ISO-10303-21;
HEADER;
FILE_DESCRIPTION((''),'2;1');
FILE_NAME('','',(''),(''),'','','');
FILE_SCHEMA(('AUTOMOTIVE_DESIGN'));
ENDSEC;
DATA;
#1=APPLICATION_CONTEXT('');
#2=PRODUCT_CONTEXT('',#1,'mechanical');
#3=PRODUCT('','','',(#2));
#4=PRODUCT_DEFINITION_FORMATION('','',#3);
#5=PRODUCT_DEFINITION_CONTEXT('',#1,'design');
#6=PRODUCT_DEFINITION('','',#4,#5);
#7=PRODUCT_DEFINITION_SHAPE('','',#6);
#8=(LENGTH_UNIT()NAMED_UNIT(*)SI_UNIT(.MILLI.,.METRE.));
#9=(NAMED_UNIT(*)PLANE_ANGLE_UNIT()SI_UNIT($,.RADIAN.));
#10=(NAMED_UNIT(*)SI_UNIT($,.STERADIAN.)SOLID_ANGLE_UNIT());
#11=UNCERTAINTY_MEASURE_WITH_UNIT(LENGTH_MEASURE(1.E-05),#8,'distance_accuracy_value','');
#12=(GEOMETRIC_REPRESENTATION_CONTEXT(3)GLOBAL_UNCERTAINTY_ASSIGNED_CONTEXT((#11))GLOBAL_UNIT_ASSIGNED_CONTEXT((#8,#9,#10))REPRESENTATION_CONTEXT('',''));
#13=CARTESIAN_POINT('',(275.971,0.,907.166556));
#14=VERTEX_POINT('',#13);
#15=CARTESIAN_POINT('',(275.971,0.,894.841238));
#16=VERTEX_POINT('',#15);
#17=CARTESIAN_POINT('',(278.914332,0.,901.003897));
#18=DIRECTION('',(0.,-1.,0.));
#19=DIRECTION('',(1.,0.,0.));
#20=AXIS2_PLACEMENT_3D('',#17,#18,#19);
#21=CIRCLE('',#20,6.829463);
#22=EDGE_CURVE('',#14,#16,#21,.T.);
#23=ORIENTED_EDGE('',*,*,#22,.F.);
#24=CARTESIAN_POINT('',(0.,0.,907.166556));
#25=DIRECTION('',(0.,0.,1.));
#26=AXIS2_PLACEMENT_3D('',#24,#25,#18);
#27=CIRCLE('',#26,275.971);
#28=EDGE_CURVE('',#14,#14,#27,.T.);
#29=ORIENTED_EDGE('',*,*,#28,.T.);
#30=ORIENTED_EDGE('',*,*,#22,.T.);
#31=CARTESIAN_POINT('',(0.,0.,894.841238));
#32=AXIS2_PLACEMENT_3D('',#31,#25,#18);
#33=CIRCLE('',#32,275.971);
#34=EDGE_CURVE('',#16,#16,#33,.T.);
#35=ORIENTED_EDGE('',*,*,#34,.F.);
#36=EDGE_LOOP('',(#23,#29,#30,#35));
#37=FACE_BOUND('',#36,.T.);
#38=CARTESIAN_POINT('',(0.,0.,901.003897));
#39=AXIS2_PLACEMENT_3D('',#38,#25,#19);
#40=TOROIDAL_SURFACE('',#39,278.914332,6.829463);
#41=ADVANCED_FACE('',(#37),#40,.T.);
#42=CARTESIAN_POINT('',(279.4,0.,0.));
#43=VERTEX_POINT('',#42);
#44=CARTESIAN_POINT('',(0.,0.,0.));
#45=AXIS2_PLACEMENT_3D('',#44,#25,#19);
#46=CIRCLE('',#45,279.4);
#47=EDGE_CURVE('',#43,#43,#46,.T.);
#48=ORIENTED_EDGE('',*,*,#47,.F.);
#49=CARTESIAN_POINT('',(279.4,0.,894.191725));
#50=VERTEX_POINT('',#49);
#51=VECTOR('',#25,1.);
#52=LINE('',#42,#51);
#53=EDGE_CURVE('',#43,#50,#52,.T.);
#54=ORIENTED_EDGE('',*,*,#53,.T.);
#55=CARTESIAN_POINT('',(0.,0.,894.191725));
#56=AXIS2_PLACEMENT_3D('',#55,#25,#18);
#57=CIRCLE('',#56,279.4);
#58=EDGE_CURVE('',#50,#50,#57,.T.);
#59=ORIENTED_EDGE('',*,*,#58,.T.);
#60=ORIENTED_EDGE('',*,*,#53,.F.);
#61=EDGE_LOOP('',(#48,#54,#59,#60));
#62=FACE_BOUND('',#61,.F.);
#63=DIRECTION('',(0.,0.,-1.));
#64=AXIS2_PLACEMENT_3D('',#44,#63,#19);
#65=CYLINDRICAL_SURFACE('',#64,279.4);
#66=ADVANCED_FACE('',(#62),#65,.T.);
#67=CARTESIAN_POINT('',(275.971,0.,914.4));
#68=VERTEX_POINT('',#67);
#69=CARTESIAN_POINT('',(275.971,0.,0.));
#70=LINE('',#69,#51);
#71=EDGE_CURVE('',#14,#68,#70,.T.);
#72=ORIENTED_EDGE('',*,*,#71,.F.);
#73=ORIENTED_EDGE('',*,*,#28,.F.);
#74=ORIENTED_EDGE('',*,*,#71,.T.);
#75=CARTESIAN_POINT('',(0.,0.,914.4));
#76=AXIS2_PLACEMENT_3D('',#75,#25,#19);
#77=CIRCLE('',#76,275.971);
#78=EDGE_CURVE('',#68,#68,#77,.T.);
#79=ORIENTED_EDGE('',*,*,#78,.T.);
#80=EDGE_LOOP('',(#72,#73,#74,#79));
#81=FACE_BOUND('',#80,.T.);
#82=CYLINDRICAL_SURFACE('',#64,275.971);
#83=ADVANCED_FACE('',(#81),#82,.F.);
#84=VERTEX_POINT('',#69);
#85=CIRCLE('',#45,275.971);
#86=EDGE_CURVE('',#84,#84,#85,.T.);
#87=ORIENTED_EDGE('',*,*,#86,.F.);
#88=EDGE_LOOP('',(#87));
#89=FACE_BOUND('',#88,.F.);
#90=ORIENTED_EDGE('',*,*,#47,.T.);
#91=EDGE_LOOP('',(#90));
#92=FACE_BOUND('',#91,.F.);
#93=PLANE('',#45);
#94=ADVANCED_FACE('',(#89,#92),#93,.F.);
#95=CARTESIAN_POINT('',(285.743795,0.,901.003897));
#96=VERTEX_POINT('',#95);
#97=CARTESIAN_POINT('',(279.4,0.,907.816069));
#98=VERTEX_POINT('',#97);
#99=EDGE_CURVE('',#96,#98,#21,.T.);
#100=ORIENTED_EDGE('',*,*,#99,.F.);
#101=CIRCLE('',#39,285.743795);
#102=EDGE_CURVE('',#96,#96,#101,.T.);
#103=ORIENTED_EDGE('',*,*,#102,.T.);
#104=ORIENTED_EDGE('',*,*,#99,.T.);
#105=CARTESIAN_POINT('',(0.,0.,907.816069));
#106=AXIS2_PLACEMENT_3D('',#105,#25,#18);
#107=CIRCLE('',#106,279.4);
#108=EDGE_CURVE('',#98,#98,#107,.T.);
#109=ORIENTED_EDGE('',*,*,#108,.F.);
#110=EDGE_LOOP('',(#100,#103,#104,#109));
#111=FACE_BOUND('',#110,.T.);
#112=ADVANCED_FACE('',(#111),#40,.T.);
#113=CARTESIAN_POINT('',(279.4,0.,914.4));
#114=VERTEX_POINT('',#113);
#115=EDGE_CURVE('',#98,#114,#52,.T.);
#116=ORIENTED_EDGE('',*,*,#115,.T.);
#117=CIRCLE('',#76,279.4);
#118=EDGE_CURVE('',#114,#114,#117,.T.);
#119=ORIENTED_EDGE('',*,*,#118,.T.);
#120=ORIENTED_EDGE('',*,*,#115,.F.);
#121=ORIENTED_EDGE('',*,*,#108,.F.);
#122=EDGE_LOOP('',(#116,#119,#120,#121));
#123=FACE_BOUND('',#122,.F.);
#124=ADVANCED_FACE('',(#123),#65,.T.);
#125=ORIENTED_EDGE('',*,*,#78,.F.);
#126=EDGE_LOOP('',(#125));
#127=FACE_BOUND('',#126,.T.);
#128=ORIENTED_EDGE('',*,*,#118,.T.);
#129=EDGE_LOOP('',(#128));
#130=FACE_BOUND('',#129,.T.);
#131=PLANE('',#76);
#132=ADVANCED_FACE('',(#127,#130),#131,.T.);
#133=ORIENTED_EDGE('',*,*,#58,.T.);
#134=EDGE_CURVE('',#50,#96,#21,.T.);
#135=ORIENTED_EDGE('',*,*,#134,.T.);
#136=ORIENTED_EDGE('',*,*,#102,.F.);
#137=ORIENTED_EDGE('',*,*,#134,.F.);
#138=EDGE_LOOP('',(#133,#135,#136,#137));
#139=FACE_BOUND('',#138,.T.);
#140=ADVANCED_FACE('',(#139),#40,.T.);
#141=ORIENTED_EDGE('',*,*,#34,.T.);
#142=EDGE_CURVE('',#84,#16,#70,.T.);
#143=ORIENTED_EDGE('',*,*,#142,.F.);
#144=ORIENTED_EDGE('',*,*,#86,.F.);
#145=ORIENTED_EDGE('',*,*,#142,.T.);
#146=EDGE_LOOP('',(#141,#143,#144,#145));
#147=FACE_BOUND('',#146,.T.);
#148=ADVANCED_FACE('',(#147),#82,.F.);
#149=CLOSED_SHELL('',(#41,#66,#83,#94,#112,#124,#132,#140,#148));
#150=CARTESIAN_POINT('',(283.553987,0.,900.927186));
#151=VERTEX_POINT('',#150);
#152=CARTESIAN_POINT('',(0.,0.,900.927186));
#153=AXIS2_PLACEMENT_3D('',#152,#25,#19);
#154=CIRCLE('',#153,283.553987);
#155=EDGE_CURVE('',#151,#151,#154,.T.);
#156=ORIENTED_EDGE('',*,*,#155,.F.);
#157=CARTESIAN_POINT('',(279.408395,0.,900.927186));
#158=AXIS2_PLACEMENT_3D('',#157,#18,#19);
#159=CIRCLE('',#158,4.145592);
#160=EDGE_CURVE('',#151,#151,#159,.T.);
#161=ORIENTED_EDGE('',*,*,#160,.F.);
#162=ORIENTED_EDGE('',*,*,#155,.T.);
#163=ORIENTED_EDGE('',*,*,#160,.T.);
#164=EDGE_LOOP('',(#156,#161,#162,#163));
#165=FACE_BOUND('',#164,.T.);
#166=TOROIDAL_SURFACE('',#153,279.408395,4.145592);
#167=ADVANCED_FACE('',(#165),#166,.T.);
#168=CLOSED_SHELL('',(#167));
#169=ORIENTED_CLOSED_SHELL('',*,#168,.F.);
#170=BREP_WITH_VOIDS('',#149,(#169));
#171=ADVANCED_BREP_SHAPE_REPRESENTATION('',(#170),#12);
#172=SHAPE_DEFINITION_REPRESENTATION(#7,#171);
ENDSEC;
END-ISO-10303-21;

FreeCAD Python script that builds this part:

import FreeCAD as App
import Part
import Sketcher

V = App.Vector
Q = App.Units.Quantity

doc = App.newDocument("Part")
body = doc.addObject("PartDesign::Body", "Body")

# Sketch on XY plane
sketch1 = doc.addObject("Sketcher::SketchObject", "Sketch")
body.addObject(sketch1)
sketch1.AttachmentSupport = (doc.XY_Plane, [""])
sketch1.MapMode = "FlatFace"
sketch1.addGeometry(Part.Circle(V(0, 0, 0), V(0, 0, 1), 279), False)
sketch1.addGeometry(Part.Circle(V(0, 0, 0), V(0, 0, 1), 276), False)
sketch1.addConstraint(Sketcher.Constraint("Coincident", 0, 3, -1, 1))
sketch1.addConstraint(Sketcher.Constraint("Coincident", 1, 3, -1, 1))
sketch1.addConstraint(Sketcher.Constraint("Diameter", 0, Q("22 in")))
sketch1.addConstraint(Sketcher.Constraint("Diameter", 1, Q("21.73 in")))
pad1 = doc.addObject("PartDesign::Pad", "Pad")
body.addObject(pad1)
pad1.Profile = sketch1
pad1.Length = Q("36 in")

# Sketch on XZ plane
sketch2 = doc.addObject("Sketcher::SketchObject", "Sketch001")
body.addObject(sketch2)
sketch2.AttachmentSupport = (doc.XZ_Plane, [""])
sketch2.MapMode = "FlatFace"
sketch2.addGeometry(Part.Circle(V(279, 901, 0), V(0, 0, 1), 7), False)
sketch2.addConstraint(Sketcher.Constraint("Diameter", 0, 13.658926))
sketch2.addConstraint(Sketcher.Constraint("DistanceX", -1, 1, 0, 3, 278.914332))
sketch2.addConstraint(Sketcher.Constraint("DistanceY", -1, 1, 0, 3, 901.003897))
revolution = doc.addObject("PartDesign::Revolution", "Revolution")
body.addObject(revolution)
revolution.Profile = sketch2
revolution.ReferenceAxis = (sketch2, ["V_Axis"])
revolution.Angle = 360

# Sketch on XZ plane
sketch3 = doc.addObject("Sketcher::SketchObject", "Sketch002")
body.addObject(sketch3)
sketch3.AttachmentSupport = (doc.XZ_Plane, [""])
sketch3.MapMode = "FlatFace"
sketch3.addGeometry(Part.Circle(V(279.4, 900.9, 0), V(0, 0, 1), 4.1), False)
sketch3.addConstraint(Sketcher.Constraint("Diameter", 0, 8.291184))
sketch3.addConstraint(Sketcher.Constraint("DistanceX", -1, 1, 0, 3, 279.408395))
sketch3.addConstraint(Sketcher.Constraint("DistanceY", -1, 1, 0, 3, 900.927186))
groove = doc.addObject("PartDesign::Groove", "Groove")
body.addObject(groove)
groove.Profile = sketch3
groove.ReferenceAxis = (sketch3, ["V_Axis"])
groove.Angle = 360

doc.recompute()
